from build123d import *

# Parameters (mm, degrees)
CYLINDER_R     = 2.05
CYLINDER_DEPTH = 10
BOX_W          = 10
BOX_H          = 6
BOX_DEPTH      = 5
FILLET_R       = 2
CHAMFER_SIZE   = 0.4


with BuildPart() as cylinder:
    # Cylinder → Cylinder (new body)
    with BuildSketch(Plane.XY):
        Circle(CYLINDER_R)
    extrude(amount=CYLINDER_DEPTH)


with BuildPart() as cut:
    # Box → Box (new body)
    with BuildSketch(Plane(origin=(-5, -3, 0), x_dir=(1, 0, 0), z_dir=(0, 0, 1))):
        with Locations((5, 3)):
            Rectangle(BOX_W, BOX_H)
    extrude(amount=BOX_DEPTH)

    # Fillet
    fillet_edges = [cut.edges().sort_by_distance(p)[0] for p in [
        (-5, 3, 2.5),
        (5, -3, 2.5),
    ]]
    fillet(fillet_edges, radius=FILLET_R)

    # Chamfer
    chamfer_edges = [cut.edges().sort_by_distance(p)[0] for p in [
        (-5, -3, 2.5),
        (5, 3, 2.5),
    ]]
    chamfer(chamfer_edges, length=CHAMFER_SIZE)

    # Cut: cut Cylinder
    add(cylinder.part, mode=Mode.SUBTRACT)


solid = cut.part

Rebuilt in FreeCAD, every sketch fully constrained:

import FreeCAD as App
import Part
import Sketcher
Q = App.Units.Quantity


def edges_at(feature, points):
    """Names of the edges that pass closest to the given points."""
    edges = feature.Shape.Edges
    near = lambda p: min(range(len(edges)), key=lambda i: edges[i].distToShape(Part.Vertex(*p))[0])
    return sorted({f"Edge{near(p) + 1}" for p in points})


def add_polygon(sketch, points):
    """Adds a closed chain of lines whose ends are joined by coincident constraints."""
    first, n = sketch.GeometryCount, len(points)
    for a, b in zip(points, points[1:] + points[:1]):
        sketch.addGeometry(Part.LineSegment(App.Vector(*a, 0), App.Vector(*b, 0)), False)
    for i in range(n):
        sketch.addConstraint(Sketcher.Constraint("Coincident", first + i, 2, first + (i + 1) % n, 1))

doc = App.newDocument("Part")
body = doc.addObject("PartDesign::Body", "Body")

sketch1 = body.newObject("Sketcher::SketchObject", "Sketch")
sketch1.AttachmentSupport = (doc.getObject("XY_Plane"), [""])
sketch1.MapMode = "FlatFace"
sketch1.addGeometry(Part.Circle(App.Vector(0, 0, 0), App.Vector(0, 0, 1), 2.05), False)
sketch1.addConstraint(Sketcher.Constraint("Coincident", 0, 3, -1, 1))
sketch1.addConstraint(Sketcher.Constraint("Diameter", 0, Q("4.1 mm")))
pad1 = body.newObject("PartDesign::Pad", "Pad")
pad1.Profile = sketch1
pad1.Length = 10
body2 = doc.addObject("PartDesign::Body", "Body001")

sketch2 = body2.newObject("Sketcher::SketchObject", "Sketch001")
sketch2.AttachmentSupport = (doc.getObject("XY_Plane001"), [""])
sketch2.MapMode = "FlatFace"
add_polygon(sketch2, [(-5, 3), (-5, -3), (5, -3), (5, 3)])
sketch2.addConstraint(Sketcher.Constraint("Vertical", 0))
sketch2.addConstraint(Sketcher.Constraint("Horizontal", 1))
sketch2.addConstraint(Sketcher.Constraint("Vertical", 2))
sketch2.addConstraint(Sketcher.Constraint("Horizontal", 3))
sketch2.addConstraint(Sketcher.Constraint("Symmetric", 0, 2, 2, 2, -1, 1))
sketch2.addConstraint(Sketcher.Constraint("DistanceX", 1, 1, 1, 2, Q("10 mm")))
sketch2.addConstraint(Sketcher.Constraint("DistanceY", 0, 2, 0, 1, Q("6 mm")))
pad2 = body2.newObject("PartDesign::Pad", "Pad001")
pad2.Profile = sketch2
pad2.Length = 5
doc.recompute()

fillet = body2.newObject("PartDesign::Fillet", "Fillet")
fillet.Base = (pad2, edges_at(pad2, [(-5, 3, 2.5), (5, -3, 2.5)]))
fillet.Radius = 2
doc.recompute()

chamfer = body2.newObject("PartDesign::Chamfer", "Chamfer")
chamfer.Base = (fillet, edges_at(fillet, [(-5, -3, 2.5), (5, 3, 2.5)]))
chamfer.Size = 0.4
doc.recompute()

boolean = body2.newObject("PartDesign::Boolean", "Boolean")
boolean.Type = "Cut"
boolean.addObjects([body])

doc.recompute()
